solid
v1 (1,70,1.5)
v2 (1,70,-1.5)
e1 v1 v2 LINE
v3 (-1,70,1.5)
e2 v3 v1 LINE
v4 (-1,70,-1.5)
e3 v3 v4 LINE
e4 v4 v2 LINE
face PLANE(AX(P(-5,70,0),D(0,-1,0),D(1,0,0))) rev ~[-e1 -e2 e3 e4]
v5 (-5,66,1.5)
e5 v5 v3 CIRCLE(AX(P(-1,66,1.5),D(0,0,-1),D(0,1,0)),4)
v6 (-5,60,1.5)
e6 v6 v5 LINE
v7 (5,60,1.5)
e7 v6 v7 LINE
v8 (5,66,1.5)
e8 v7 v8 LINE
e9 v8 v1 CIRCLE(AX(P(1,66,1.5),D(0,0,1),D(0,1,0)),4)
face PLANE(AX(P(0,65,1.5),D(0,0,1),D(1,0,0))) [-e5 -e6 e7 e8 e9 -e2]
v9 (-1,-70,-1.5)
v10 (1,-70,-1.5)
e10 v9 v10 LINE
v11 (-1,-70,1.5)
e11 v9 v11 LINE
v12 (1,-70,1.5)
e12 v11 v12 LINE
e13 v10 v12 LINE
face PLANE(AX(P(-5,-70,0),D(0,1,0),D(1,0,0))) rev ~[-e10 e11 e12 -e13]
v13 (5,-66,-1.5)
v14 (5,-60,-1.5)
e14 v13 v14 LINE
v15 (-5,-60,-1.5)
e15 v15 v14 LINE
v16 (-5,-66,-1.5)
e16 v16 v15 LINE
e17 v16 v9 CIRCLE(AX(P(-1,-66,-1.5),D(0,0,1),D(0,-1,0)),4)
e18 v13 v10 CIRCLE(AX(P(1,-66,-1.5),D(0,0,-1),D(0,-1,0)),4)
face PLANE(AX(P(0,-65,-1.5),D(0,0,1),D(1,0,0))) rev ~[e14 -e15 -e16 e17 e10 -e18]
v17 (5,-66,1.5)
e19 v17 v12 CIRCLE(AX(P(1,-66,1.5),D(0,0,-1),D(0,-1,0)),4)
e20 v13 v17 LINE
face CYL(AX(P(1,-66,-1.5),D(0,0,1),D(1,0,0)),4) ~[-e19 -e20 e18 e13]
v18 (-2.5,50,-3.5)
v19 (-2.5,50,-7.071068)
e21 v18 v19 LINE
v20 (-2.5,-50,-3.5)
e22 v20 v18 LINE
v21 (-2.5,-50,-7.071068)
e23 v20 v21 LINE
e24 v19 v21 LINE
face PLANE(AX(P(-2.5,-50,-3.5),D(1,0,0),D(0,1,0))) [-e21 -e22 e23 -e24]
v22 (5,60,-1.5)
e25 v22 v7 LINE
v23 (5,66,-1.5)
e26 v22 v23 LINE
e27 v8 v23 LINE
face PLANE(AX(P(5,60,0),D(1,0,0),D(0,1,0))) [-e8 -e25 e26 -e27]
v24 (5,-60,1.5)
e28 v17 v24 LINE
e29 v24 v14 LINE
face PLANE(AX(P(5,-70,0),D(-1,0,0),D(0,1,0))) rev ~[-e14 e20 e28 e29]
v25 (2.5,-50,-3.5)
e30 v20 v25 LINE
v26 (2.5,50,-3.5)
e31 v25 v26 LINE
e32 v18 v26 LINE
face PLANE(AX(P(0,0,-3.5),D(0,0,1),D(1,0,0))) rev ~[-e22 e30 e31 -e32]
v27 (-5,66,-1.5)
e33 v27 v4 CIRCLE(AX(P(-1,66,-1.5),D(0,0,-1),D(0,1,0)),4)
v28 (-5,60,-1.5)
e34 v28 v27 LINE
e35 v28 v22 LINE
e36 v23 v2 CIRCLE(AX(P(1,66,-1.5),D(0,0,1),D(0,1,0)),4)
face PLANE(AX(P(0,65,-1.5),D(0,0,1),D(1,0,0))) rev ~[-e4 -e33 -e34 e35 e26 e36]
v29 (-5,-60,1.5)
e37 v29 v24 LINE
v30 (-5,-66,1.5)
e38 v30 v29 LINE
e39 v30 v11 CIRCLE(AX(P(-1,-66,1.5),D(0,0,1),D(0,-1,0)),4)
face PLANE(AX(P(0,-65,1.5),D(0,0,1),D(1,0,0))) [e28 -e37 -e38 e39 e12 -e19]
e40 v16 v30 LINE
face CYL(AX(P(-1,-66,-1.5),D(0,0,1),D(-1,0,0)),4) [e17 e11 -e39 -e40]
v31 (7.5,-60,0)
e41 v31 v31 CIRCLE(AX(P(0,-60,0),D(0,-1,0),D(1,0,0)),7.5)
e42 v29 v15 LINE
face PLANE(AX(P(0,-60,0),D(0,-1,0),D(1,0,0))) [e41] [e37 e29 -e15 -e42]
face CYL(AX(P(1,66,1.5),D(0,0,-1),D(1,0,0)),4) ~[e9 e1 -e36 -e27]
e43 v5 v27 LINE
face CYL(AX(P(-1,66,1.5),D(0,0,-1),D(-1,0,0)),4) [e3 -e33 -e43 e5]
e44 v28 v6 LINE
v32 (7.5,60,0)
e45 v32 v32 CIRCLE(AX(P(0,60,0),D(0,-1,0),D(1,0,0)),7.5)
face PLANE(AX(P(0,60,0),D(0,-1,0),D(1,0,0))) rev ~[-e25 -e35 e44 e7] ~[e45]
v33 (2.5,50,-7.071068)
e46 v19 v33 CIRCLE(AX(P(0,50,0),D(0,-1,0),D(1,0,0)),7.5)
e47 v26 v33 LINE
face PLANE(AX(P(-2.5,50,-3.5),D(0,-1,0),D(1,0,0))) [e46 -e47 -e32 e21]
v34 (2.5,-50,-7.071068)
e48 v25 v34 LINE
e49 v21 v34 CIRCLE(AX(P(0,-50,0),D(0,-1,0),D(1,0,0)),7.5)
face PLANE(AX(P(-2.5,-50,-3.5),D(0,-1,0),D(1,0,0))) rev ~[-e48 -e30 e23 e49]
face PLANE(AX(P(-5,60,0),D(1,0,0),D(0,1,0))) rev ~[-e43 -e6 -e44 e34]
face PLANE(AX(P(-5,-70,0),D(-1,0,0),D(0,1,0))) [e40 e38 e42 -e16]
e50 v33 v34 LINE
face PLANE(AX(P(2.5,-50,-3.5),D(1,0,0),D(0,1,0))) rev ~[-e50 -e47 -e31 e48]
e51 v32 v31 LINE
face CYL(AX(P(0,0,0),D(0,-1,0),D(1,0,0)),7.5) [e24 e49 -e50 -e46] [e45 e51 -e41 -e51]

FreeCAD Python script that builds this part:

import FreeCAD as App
import Part
import Sketcher
Q = App.Units.Quantity


def edges_at(feature, points):
    """Names of the edges that pass closest to the given points."""
    edges = feature.Shape.Edges
    near = lambda p: min(range(len(edges)), key=lambda i: edges[i].distToShape(Part.Vertex(*p))[0])
    return sorted({f"Edge{near(p) + 1}" for p in points})


def add_polygon(sketch, points):
    """Adds a closed chain of lines whose ends are joined by coincident constraints."""
    first, n = sketch.GeometryCount, len(points)
    for a, b in zip(points, points[1:] + points[:1]):
        sketch.addGeometry(Part.LineSegment(App.Vector(*a, 0), App.Vector(*b, 0)), False)
    for i in range(n):
        sketch.addConstraint(Sketcher.Constraint("Coincident", first + i, 2, first + (i + 1) % n, 1))

doc = App.newDocument("Part")
body = doc.addObject("PartDesign::Body", "Body")

sketch1 = body.newObject("Sketcher::SketchObject", "Sketch")
sketch1.AttachmentSupport = (doc.getObject("XZ_Plane"), [""])
sketch1.MapMode = "FlatFace"
sketch1.addGeometry(Part.Circle(App.Vector(0, 0, 0), App.Vector(0, 0, 1), 8), False)
sketch1.addConstraint([
    Sketcher.Constraint("Coincident", 0, 3, -1, 1),
    Sketcher.Constraint("Diameter", 0, Q("15 mm")),
])
pad1 = body.newObject("PartDesign::Pad", "Pad")
pad1.Profile = sketch1
pad1.Length = 120
pad1.Midplane = True

sketch2 = body.newObject("Sketcher::SketchObject", "Sketch001")
sketch2.AttachmentSupport = (doc.getObject("XY_Plane"), [""])
sketch2.MapMode = "FlatFace"
sketch2.AttachmentOffset = App.Placement(App.Vector(0, 0, -3.5), App.Rotation())
add_polygon(sketch2, [(-2, 50), (-2, -50), (2, -50), (2, 50)])
sketch2.addConstraint([
    Sketcher.Constraint("Vertical", 0),
    Sketcher.Constraint("Horizontal", 1),
    Sketcher.Constraint("Vertical", 2),
    Sketcher.Constraint("Horizontal", 3),
    Sketcher.Constraint("Symmetric", 0, 2, 2, 2, -1, 1),
    Sketcher.Constraint("DistanceX", 1, 1, 1, 2, Q("5 mm")),
    Sketcher.Constraint("DistanceY", 0, 2, 0, 1, Q("100 mm")),
])
pocket1 = body.newObject("PartDesign::Pocket", "Pocket")
pocket1.Profile = sketch2
pocket1.Type = "ThroughAll"

sketch3 = body.newObject("Sketcher::SketchObject", "Sketch002")
sketch3.AttachmentSupport = (doc.getObject("XY_Plane"), [""])
sketch3.MapMode = "FlatFace"
add_polygon(sketch3, [(-5, -60), (-5, -70), (5, -70), (5, -60)])
add_polygon(sketch3, [(-5, 70), (-5, 60), (5, 60), (5, 70)])
sketch3.addConstraint([
    Sketcher.Constraint("Vertical", 0),
    Sketcher.Constraint("Horizontal", 1),
    Sketcher.Constraint("Vertical", 2),
    Sketcher.Constraint("Horizontal", 3),
    Sketcher.Constraint("Vertical", 4),
    Sketcher.Constraint("Horizontal", 5),
    Sketcher.Constraint("Vertical", 6),
    Sketcher.Constraint("Horizontal", 7),
    Sketcher.Constraint("Symmetric", 2, 2, 4, 2, -1, 1),
    Sketcher.Constraint("Symmetric", 0, 2, 6, 2, -1, 1),
    Sketcher.Constraint("Vertical", 3, 2, 4, 2),
    Sketcher.Constraint("Equal", 7, 0),
    Sketcher.Constraint("DistanceX", 1, 1, 1, 2, Q("10 mm")),
    Sketcher.Constraint("DistanceY", 0, 2, -1, 1, Q("70 mm")),
])
pad2 = body.newObject("PartDesign::Pad", "Pad001")
pad2.Profile = sketch3
pad2.Length = 3
pad2.Midplane = True
doc.recompute()

fillet = body.newObject("PartDesign::Fillet", "Fillet")
fillet.Base = (pad2, edges_at(pad2, [
    (-5, 70, 0),
    (5, 70, 0),
    (5, -70, 0),
    (-5, -70, 0),
]))
fillet.Radius = 4

doc.recompute()
